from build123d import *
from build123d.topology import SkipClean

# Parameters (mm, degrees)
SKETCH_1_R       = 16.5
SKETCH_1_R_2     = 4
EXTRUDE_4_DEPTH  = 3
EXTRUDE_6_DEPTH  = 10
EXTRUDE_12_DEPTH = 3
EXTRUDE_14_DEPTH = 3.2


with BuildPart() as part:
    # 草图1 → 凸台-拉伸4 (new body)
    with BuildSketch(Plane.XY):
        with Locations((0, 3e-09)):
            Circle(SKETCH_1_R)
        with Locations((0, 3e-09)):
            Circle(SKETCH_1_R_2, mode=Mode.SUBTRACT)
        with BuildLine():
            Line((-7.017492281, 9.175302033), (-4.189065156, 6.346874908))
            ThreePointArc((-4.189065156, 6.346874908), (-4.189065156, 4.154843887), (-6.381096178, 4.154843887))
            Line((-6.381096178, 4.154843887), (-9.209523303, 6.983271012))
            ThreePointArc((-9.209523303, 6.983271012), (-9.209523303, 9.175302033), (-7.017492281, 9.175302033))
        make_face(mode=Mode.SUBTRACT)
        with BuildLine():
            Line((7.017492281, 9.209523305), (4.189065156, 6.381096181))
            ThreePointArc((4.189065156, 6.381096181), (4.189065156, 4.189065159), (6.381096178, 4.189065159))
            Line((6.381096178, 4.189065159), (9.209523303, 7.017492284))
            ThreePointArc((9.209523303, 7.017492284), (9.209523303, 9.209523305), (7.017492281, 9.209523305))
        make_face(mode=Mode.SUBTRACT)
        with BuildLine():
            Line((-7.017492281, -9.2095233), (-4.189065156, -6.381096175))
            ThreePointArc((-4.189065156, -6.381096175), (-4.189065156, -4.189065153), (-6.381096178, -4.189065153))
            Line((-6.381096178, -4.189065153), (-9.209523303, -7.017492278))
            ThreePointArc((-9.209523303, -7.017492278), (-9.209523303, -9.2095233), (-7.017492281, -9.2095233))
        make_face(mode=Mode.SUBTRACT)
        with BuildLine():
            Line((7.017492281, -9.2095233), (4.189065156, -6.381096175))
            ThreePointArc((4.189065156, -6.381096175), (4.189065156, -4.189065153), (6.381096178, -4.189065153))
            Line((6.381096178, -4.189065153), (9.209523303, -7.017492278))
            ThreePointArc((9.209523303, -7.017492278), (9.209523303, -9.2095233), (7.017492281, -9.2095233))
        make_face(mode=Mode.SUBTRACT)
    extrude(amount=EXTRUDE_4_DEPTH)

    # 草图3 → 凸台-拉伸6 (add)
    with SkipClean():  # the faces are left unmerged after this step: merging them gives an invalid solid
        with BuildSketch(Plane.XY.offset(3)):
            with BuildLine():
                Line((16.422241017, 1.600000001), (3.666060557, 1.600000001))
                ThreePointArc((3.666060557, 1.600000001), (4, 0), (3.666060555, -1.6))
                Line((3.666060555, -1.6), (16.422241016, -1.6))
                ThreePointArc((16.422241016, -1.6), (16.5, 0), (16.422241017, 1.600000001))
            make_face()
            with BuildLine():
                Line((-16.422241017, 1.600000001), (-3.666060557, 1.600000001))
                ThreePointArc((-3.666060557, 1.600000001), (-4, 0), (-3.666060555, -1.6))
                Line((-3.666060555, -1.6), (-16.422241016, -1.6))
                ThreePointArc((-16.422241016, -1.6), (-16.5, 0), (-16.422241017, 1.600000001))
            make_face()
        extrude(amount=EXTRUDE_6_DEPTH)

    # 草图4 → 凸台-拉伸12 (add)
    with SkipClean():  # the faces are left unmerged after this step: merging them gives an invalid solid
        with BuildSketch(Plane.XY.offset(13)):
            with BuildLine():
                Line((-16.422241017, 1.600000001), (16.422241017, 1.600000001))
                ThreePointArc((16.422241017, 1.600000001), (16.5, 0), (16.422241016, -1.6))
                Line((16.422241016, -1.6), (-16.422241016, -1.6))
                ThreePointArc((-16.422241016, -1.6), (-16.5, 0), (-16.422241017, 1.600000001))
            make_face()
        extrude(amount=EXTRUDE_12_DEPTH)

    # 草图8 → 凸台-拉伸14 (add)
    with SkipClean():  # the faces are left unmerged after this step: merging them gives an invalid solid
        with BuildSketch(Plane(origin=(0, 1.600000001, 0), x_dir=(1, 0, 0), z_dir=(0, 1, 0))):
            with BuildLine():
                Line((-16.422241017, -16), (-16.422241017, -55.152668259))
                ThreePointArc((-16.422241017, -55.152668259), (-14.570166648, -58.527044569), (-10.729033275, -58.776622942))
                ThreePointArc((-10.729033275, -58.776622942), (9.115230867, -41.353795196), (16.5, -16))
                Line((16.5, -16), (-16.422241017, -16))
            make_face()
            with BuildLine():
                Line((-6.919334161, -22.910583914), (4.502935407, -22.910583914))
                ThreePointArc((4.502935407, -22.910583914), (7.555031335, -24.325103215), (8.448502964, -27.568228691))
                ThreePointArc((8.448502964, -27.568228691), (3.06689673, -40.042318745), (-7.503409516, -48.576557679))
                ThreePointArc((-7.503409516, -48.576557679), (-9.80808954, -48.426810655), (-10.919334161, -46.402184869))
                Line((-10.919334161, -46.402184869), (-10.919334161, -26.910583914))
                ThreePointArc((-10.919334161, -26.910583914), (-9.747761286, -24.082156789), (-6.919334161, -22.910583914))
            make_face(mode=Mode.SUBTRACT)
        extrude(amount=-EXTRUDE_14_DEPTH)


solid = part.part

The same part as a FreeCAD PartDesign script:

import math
import FreeCAD as App
import Part
import Sketcher

doc = App.newDocument("Part")
body = doc.addObject("PartDesign::Body", "Body")

sketch1 = body.newObject("Sketcher::SketchObject", "Sketch")
sketch1.AttachmentSupport = (doc.getObject("XY_Plane"), [""])
sketch1.MapMode = "FlatFace"
sketch1.addGeometry(Part.Circle(App.Vector(0, 0, 0), App.Vector(0, 0, 1), 16.5), False)
sketch1.addGeometry(Part.LineSegment(App.Vector(-4.2, -6.4, 0), App.Vector(-7, -9.2, 0)), False)
sketch1.addGeometry(Part.ArcOfCircle(Part.Circle(App.Vector(-8.1, -8.1, 0), App.Vector(0, 0, 1), 1.6), math.radians(135), math.radians(315)), False)
sketch1.addGeometry(Part.LineSegment(App.Vector(-9.2, -7, 0), App.Vector(-6.4, -4.2, 0)), False)
sketch1.addGeometry(Part.ArcOfCircle(Part.Circle(App.Vector(-5.3, -5.3, 0), App.Vector(0, 0, 1), 1.6), math.radians(-45), math.radians(135)), False)
sketch1.addGeometry(Part.ArcOfCircle(Part.Circle(App.Vector(8.1, -8.1, 0), App.Vector(0, 0, 1), 1.6), math.radians(-135), math.radians(45)), False)
sketch1.addGeometry(Part.LineSegment(App.Vector(7, -9.2, 0), App.Vector(4.2, -6.4, 0)), False)
sketch1.addGeometry(Part.ArcOfCircle(Part.Circle(App.Vector(5.3, -5.3, 0), App.Vector(0, 0, 1), 1.6), math.radians(45), math.radians(225)), False)
sketch1.addGeometry(Part.LineSegment(App.Vector(6.4, -4.2, 0), App.Vector(9.2, -7, 0)), False)
sketch1.addGeometry(Part.Circle(App.Vector(0, 0, 0), App.Vector(0, 0, 1), 4), False)
sketch1.addGeometry(Part.ArcOfCircle(Part.Circle(App.Vector(-8.1, 8.1, 0), App.Vector(0, 0, 1), 1.6), math.radians(45), math.radians(225)), False)
sketch1.addGeometry(Part.LineSegment(App.Vector(-7, 9.2, 0), App.Vector(-4.2, 6.3, 0)), False)
sketch1.addGeometry(Part.ArcOfCircle(Part.Circle(App.Vector(-5.3, 5.3, 0), App.Vector(0, 0, 1), 1.6), math.radians(-135), math.radians(45)), False)
sketch1.addGeometry(Part.LineSegment(App.Vector(-6.4, 4.2, 0), App.Vector(-9.2, 7, 0)), False)
sketch1.addGeometry(Part.LineSegment(App.Vector(4.2, 6.4, 0), App.Vector(7, 9.2, 0)), False)
sketch1.addGeometry(Part.ArcOfCircle(Part.Circle(App.Vector(8.1, 8.1, 0), App.Vector(0, 0, 1), 1.6), math.radians(-45), math.radians(135)), False)
sketch1.addGeometry(Part.LineSegment(App.Vector(9.2, 7, 0), App.Vector(6.4, 4.2, 0)), False)
sketch1.addGeometry(Part.ArcOfCircle(Part.Circle(App.Vector(5.3, 5.3, 0), App.Vector(0, 0, 1), 1.6), math.radians(135), math.radians(315)), False)
sketch1.addConstraint(Sketcher.Constraint("Tangent", 1, 2, 2, 2))
sketch1.addConstraint(Sketcher.Constraint("Tangent", 2, 1, 3, 1))
sketch1.addConstraint(Sketcher.Constraint("Tangent", 3, 2, 4, 2))
sketch1.addConstraint(Sketcher.Constraint("Tangent", 4, 1, 1, 1))
sketch1.addConstraint(Sketcher.Constraint("Tangent", 5, 1, 6, 1))
sketch1.addConstraint(Sketcher.Constraint("Tangent", 6, 2, 7, 2))
sketch1.addConstraint(Sketcher.Constraint("Tangent", 7, 1, 8, 1))
sketch1.addConstraint(Sketcher.Constraint("Tangent", 8, 2, 5, 2))
sketch1.addConstraint(Sketcher.Constraint("Tangent", 10, 1, 11, 1))
sketch1.addConstraint(Sketcher.Constraint("Tangent", 11, 2, 12, 2))
sketch1.addConstraint(Sketcher.Constraint("Tangent", 12, 1, 13, 1))
sketch1.addConstraint(Sketcher.Constraint("Tangent", 13, 2, 10, 2))
sketch1.addConstraint(Sketcher.Constraint("Tangent", 14, 2, 15, 2))
sketch1.addConstraint(Sketcher.Constraint("Tangent", 15, 1, 16, 1))
sketch1.addConstraint(Sketcher.Constraint("Tangent", 16, 2, 17, 2))
sketch1.addConstraint(Sketcher.Constraint("Tangent", 17, 1, 14, 1))
sketch1.addConstraint(Sketcher.Constraint("Coincident", 0, 3, -1, 1))
sketch1.addConstraint(Sketcher.Constraint("Coincident", 9, 3, -1, 1))
sketch1.addConstraint(Sketcher.Constraint("Equal", 2, 4))
sketch1.addConstraint(Sketcher.Constraint("Equal", 4, 5))
sketch1.addConstraint(Sketcher.Constraint("Equal", 5, 7))
sketch1.addConstraint(Sketcher.Constraint("Equal", 7, 10))
sketch1.addConstraint(Sketcher.Constraint("Equal", 10, 12))
sketch1.addConstraint(Sketcher.Constraint("Equal", 12, 15))
sketch1.addConstraint(Sketcher.Constraint("Equal", 15, 17))
sketch1.addConstraint(Sketcher.Constraint("Symmetric", 2, 3, 15, 3, -1, 1))
sketch1.addConstraint(Sketcher.Constraint("Symmetric", 4, 3, 17, 3, -1, 1))
sketch1.addConstraint(Sketcher.Constraint("Symmetric", 2, 3, 5, 3, -2))
sketch1.addConstraint(Sketcher.Constraint("Symmetric", 4, 3, 7, 3, -2))
sketch1.addConstraint(Sketcher.Constraint("Perpendicular", 3, 6))
sketch1.addConstraint(Sketcher.Constraint("Parallel", 8, 11))
sketch1.addConstraint(Sketcher.Constraint("Vertical", 2, 3, 10, 3))
sketch1.addConstraint(Sketcher.Constraint("Vertical", 4, 3, 12, 3))
sketch1.addConstraint(Sketcher.Constraint("Diameter", 0, 33.0))
sketch1.addConstraint(Sketcher.Constraint("Diameter", 9, 8.0))
sketch1.addConstraint(Sketcher.Constraint("Radius", 2, 1.55))
sketch1.addConstraint(Sketcher.Constraint("Distance", 1, 4.0))
sketch1.addConstraint(Sketcher.Constraint("DistanceX", 4, 3, -1, 1, 5.285081))
sketch1.addConstraint(Sketcher.Constraint("DistanceY", 4, 3, -1, 1, 5.285081))
sketch1.addConstraint(Sketcher.Constraint("DistanceY", -1, 1, 12, 3, 5.250859))
pad1 = body.newObject("PartDesign::Pad", "Pad")
pad1.Profile = sketch1
pad1.Length = 3

sketch2 = body.newObject("Sketcher::SketchObject", "Sketch001")
sketch2.AttachmentSupport = (doc.getObject("XY_Plane"), [""])
sketch2.MapMode = "FlatFace"
sketch2.AttachmentOffset = App.Placement(App.Vector(0, 0, 3), App.Rotation())
sketch2.addGeometry(Part.LineSegment(App.Vector(16.4, 1.6, 0), App.Vector(3.7, 1.6, 0)), False)
sketch2.addGeometry(Part.ArcOfCircle(Part.Circle(App.Vector(0, 0, 0), App.Vector(0, 0, 1), 4), math.radians(-24), math.radians(24)), False)
sketch2.addGeometry(Part.LineSegment(App.Vector(3.7, -1.6, 0), App.Vector(16.4, -1.6, 0)), False)
sketch2.addGeometry(Part.ArcOfCircle(Part.Circle(App.Vector(0, 0, 0), App.Vector(0, 0, 1), 16.5), math.radians(-5.56), math.radians(5.56)), False)
sketch2.addGeometry(Part.LineSegment(App.Vector(-3.7, 1.6, 0), App.Vector(-16.4, 1.6, 0)), False)
sketch2.addGeometry(Part.ArcOfCircle(Part.Circle(App.Vector(0, 0, 0), App.Vector(0, 0, 1), 16.5), math.radians(174.44), math.radians(185.56)), False)
sketch2.addGeometry(Part.LineSegment(App.Vector(-16.4, -1.6, 0), App.Vector(-3.7, -1.6, 0)), False)
sketch2.addGeometry(Part.ArcOfCircle(Part.Circle(App.Vector(0, 0, 0), App.Vector(0, 0, 1), 4), math.radians(156), math.radians(204)), False)
sketch2.addConstraint(Sketcher.Constraint("Coincident", 0, 2, 1, 2))
sketch2.addConstraint(Sketcher.Constraint("Coincident", 1, 1, 2, 1))
sketch2.addConstraint(Sketcher.Constraint("Coincident", 2, 2, 3, 1))
sketch2.addConstraint(Sketcher.Constraint("Coincident", 3, 2, 0, 1))
sketch2.addConstraint(Sketcher.Constraint("Coincident", 4, 2, 5, 1))
sketch2.addConstraint(Sketcher.Constraint("Coincident", 5, 2, 6, 1))
sketch2.addConstraint(Sketcher.Constraint("Coincident", 6, 2, 7, 2))
sketch2.addConstraint(Sketcher.Constraint("Coincident", 7, 1, 4, 1))
sketch2.addConstraint(Sketcher.Constraint("Horizontal", 0))
sketch2.addConstraint(Sketcher.Constraint("Horizontal", 2))
sketch2.addConstraint(Sketcher.Constraint("Horizontal", 4))
sketch2.addConstraint(Sketcher.Constraint("Horizontal", 6))
sketch2.addConstraint(Sketcher.Constraint("Coincident", 1, 3, -1, 1))
sketch2.addConstraint(Sketcher.Constraint("Coincident", 3, 3, -1, 1))
sketch2.addConstraint(Sketcher.Constraint("Coincident", 5, 3, -1, 1))
sketch2.addConstraint(Sketcher.Constraint("Coincident", 7, 3, -1, 1))
sketch2.addConstraint(Sketcher.Constraint("Equal", 3, 5))
sketch2.addConstraint(Sketcher.Constraint("Equal", 1, 7))
sketch2.addConstraint(Sketcher.Constraint("Horizontal", 3, 2, 4, 2))
sketch2.addConstraint(Sketcher.Constraint("Horizontal", 2, 2, 5, 2))
sketch2.addConstraint(Sketcher.Constraint("Vertical", 0, 2, 1, 1))
sketch2.addConstraint(Sketcher.Constraint("Radius", 1, 4.0))
sketch2.addConstraint(Sketcher.Constraint("Radius", 3, 16.5))
sketch2.addConstraint(Sketcher.Constraint("DistanceY", -1, 1, 0, 2, 1.6))
pad2 = body.newObject("PartDesign::Pad", "Pad001")
pad2.Profile = sketch2
pad2.Length = 10

sketch3 = body.newObject("Sketcher::SketchObject", "Sketch002")
sketch3.AttachmentSupport = (doc.getObject("XY_Plane"), [""])
sketch3.MapMode = "FlatFace"
sketch3.AttachmentOffset = App.Placement(App.Vector(0, 0, 13), App.Rotation())
sketch3.addGeometry(Part.LineSegment(App.Vector(16.4, 1.6, 0), App.Vector(-16.4, 1.6, 0)), False)
sketch3.addGeometry(Part.ArcOfCircle(Part.Circle(App.Vector(0, 0, 0), App.Vector(0, 0, 1), 16.5), math.radians(174.44), math.radians(185.56)), False)
sketch3.addGeometry(Part.LineSegment(App.Vector(-16.4, -1.6, 0), App.Vector(16.4, -1.6, 0)), False)
sketch3.addGeometry(Part.ArcOfCircle(Part.Circle(App.Vector(0, 0, 0), App.Vector(0, 0, 1), 16.5), math.radians(-5.56), math.radians(5.56)), False)
sketch3.addConstraint(Sketcher.Constraint("Coincident", 0, 2, 1, 1))
sketch3.addConstraint(Sketcher.Constraint("Coincident", 1, 2, 2, 1))
sketch3.addConstraint(Sketcher.Constraint("Coincident", 2, 2, 3, 1))
sketch3.addConstraint(Sketcher.Constraint("Coincident", 3, 2, 0, 1))
sketch3.addConstraint(Sketcher.Constraint("Horizontal", 0))
sketch3.addConstraint(Sketcher.Constraint("Horizontal", 2))
sketch3.addConstraint(Sketcher.Constraint("Coincident", 1, 3, -1, 1))
sketch3.addConstraint(Sketcher.Constraint("Coincident", 3, 3, -1, 1))
sketch3.addConstraint(Sketcher.Constraint("Equal", 1, 3))
sketch3.addConstraint(Sketcher.Constraint("Vertical", 0, 2, 1, 2))
sketch3.addConstraint(Sketcher.Constraint("Radius", 1, 16.5))
sketch3.addConstraint(Sketcher.Constraint("DistanceY", -1, 1, 0, 2, 1.6))
pad3 = body.newObject("PartDesign::Pad", "Pad002")
pad3.Profile = sketch3
pad3.Length = 3

sketch4 = body.newObject("Sketcher::SketchObject", "Sketch003")
sketch4.AttachmentSupport = (doc.getObject("XZ_Plane"), [""])
sketch4.MapMode = "FlatFace"
sketch4.AttachmentOffset = App.Placement(App.Vector(0, 0, -1.6), App.Rotation())
sketch4.addGeometry(Part.LineSegment(App.Vector(-16.4, 16, 0), App.Vector(-16.4, 55.2, 0)), False)
sketch4.addGeometry(Part.ArcOfCircle(Part.Circle(App.Vector(-12.4, 55.2, 0), App.Vector(0, 0, 1), 4), math.radians(65), math.radians(180)), False)
sketch4.addGeometry(Part.ArcOfCircle(Part.Circle(App.Vector(-30.7, 16, 0), App.Vector(0, 0, 1), 47.2), math.radians(0), math.radians(65)), False)
sketch4.addGeometry(Part.LineSegment(App.Vector(16.5, 16, 0), App.Vector(-16.4, 16, 0)), False)
sketch4.addGeometry(Part.ArcOfCircle(Part.Circle(App.Vector(-6.9, 26.9, 0), App.Vector(0, 0, 1), 4), math.radians(180), math.radians(270)), False)
sketch4.addGeometry(Part.LineSegment(App.Vector(-6.9, 22.9, 0), App.Vector(4.5, 22.9, 0)), False)
sketch4.addGeometry(Part.ArcOfCircle(Part.Circle(App.Vector(4.5, 26.9, 0), App.Vector(0, 0, 1), 4), math.radians(-90), math.radians(9)), False)
sketch4.addGeometry(Part.ArcOfCircle(Part.Circle(App.Vector(-19.5, 22.9, 0), App.Vector(0, 0, 1), 28.3), math.radians(9), math.radians(65)), False)
sketch4.addGeometry(Part.ArcOfCircle(Part.Circle(App.Vector(-8.5, 46.4, 0), App.Vector(0, 0, 1), 2.4), math.radians(65), math.radians(180)), False)
sketch4.addGeometry(Part.LineSegment(App.Vector(-10.9, 46.4, 0), App.Vector(-10.9, 26.9, 0)), False)
sketch4.addConstraint(Sketcher.Constraint("Tangent", 0, 2, 1, 2))
sketch4.addConstraint(Sketcher.Constraint("Tangent", 1, 1, 2, 2))
sketch4.addConstraint(Sketcher.Constraint("Coincident", 2, 1, 3, 1))
sketch4.addConstraint(Sketcher.Constraint("Coincident", 3, 2, 0, 1))
sketch4.addConstraint(Sketcher.Constraint("Tangent", 4, 2, 5, 1))
sketch4.addConstraint(Sketcher.Constraint("Tangent", 5, 2, 6, 1))
sketch4.addConstraint(Sketcher.Constraint("Tangent", 6, 2, 7, 1))
sketch4.addConstraint(Sketcher.Constraint("Tangent", 7, 2, 8, 1))
sketch4.addConstraint(Sketcher.Constraint("Tangent", 8, 2, 9, 1))
sketch4.addConstraint(Sketcher.Constraint("Tangent", 9, 2, 4, 1))
sketch4.addConstraint(Sketcher.Constraint("Vertical", 0))
sketch4.addConstraint(Sketcher.Constraint("Horizontal", 3))
sketch4.addConstraint(Sketcher.Constraint("Horizontal", 5))
sketch4.addConstraint(Sketcher.Constraint("Vertical", 9))
sketch4.addConstraint(Sketcher.Constraint("Equal", 1, 4))
sketch4.addConstraint(Sketcher.Constraint("Equal", 4, 6))
sketch4.addConstraint(Sketcher.Constraint("Horizontal", 7, 3, 4, 2))
sketch4.addConstraint(Sketcher.Constraint("Radius", 1, 4.0))
sketch4.addConstraint(Sketcher.Constraint("Radius", 8, 2.4))
sketch4.addConstraint(Sketcher.Constraint("DistanceY", -1, 1, 2, 3, 16.0))
sketch4.addConstraint(Sketcher.Constraint("DistanceY", -1, 1, 2, 1, 16.0))
sketch4.addConstraint(Sketcher.Constraint("DistanceX", -1, 1, 2, 1, 16.5))
sketch4.addConstraint(Sketcher.Constraint("DistanceY", 9, 2, 9, 1, 19.491601))
sketch4.addConstraint(Sketcher.Constraint("Radius", 2, 47.215406))
sketch4.addConstraint(Sketcher.Constraint("Radius", 7, 28.329244))
sketch4.addConstraint(Sketcher.Constraint("DistanceX", 3, 2, 3, 1, 32.922241))
sketch4.addConstraint(Sketcher.Constraint("DistanceX", 1, 1, 8, 3, 2.209699))
sketch4.addConstraint(Sketcher.Constraint("DistanceY", -1, 1, 6, 2, 27.568229))
pad4 = body.newObject("PartDesign::Pad", "Pad003")
pad4.Profile = sketch4
pad4.Length = 3.2

doc.recompute()
